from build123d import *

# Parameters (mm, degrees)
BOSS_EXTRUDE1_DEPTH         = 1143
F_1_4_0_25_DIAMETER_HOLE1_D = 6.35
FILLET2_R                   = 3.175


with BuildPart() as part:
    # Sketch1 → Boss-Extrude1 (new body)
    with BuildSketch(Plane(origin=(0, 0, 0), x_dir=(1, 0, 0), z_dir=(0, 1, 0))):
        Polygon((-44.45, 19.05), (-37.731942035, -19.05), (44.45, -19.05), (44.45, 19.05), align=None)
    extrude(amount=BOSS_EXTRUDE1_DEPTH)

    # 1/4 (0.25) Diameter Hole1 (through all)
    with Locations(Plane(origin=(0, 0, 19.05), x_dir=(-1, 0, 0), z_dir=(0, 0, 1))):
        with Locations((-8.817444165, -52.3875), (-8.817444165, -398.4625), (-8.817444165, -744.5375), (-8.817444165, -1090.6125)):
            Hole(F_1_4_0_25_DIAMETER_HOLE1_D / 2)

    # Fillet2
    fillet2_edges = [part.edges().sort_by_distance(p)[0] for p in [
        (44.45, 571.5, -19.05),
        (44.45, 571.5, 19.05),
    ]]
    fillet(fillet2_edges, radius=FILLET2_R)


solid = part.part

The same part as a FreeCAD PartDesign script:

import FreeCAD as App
import Part
import Sketcher
Q = App.Units.Quantity


def edges_at(feature, points):
    """Names of the edges that pass closest to the given points."""
    edges = feature.Shape.Edges
    near = lambda p: min(range(len(edges)), key=lambda i: edges[i].distToShape(Part.Vertex(*p))[0])
    return sorted({f"Edge{near(p) + 1}" for p in points})

doc = App.newDocument("Part")
body = doc.addObject("PartDesign::Body", "Body")

sketch1 = body.newObject("Sketcher::SketchObject", "Sketch")
sketch1.AttachmentSupport = (doc.getObject("XZ_Plane"), [""])
sketch1.MapMode = "FlatFace"
sketch1.addGeometry([
    Part.LineSegment(App.Vector(-44, -19, 0), App.Vector(-38, 19, 0)),
    Part.LineSegment(App.Vector(-38, 19, 0), App.Vector(44, 19, 0)),
    Part.LineSegment(App.Vector(44, 19, 0), App.Vector(44, -19, 0)),
    Part.LineSegment(App.Vector(44, -19, 0), App.Vector(-44, -19, 0)),
], False)
sketch1.addConstraint([
    Sketcher.Constraint("Coincident", 0, 2, 1, 1),
    Sketcher.Constraint("Coincident", 1, 2, 2, 1),
    Sketcher.Constraint("Coincident", 2, 2, 3, 1),
    Sketcher.Constraint("Coincident", 3, 2, 0, 1),
    Sketcher.Constraint("Horizontal", 1),
    Sketcher.Constraint("Vertical", 2),
    Sketcher.Constraint("Horizontal", 3),
    Sketcher.Constraint("Symmetric", 1, 2, 3, 2, -1, 1),
    Sketcher.Constraint("DistanceX", 3, 2, 3, 1, Q("3.5 in")),
    Sketcher.Constraint("DistanceY", 2, 2, 2, 1, Q("1.5 in")),
    Sketcher.Constraint("Angle", 0, Q("80 deg")),
])
pad1 = body.newObject("PartDesign::Pad", "Pad")
pad1.Profile = sketch1
pad1.Length = Q("45 in")
pad1.Reversed = True

sketch2 = body.newObject("Sketcher::SketchObject", "Sketch001")
sketch2.AttachmentSupport = (doc.getObject("XY_Plane"), [""])
sketch2.MapMode = "FlatFace"
sketch2.AttachmentOffset = App.Placement(App.Vector(0, 0, 0.75 * 25.4), App.Rotation())
sketch2.addGeometry([
    Part.Circle(App.Vector(8.8, 52.4, 0), App.Vector(0, 0, 1), 3.2),
    Part.Circle(App.Vector(8.8, 398.5, 0), App.Vector(0, 0, 1), 3.2),
    Part.Circle(App.Vector(8.8, 744.5, 0), App.Vector(0, 0, 1), 3.2),
    Part.Circle(App.Vector(8.8, 1090.6, 0), App.Vector(0, 0, 1), 3.2),
], False)
sketch2.addConstraint([
    Sketcher.Constraint("Equal", 0, 1),
    Sketcher.Constraint("Equal", 1, 2),
    Sketcher.Constraint("Equal", 2, 3),
    Sketcher.Constraint("Vertical", 0, 3, 1, 3),
    Sketcher.Constraint("Vertical", 1, 3, 2, 3),
    Sketcher.Constraint("Vertical", 2, 3, 3, 3),
    Sketcher.Constraint("Diameter", 0, Q("0.25 in")),
    Sketcher.Constraint("DistanceY", 0, 3, 2, 3, Q("27.25 in")),
    Sketcher.Constraint("DistanceY", 1, 3, 3, 3, Q("27.25 in")),
    Sketcher.Constraint("DistanceY", -1, 1, 0, 3, Q("2.0625 in")),
    Sketcher.Constraint("DistanceY", -1, 1, 1, 3, Q("15.6875 in")),
    Sketcher.Constraint("DistanceX", -1, 1, 0, 3, 8.817444),
])
doc.recompute()
hole = body.newObject("PartDesign::Hole", "Hole")
hole.Profile = sketch2
hole.ThreadType = "None"
hole.Diameter = Q("0.25 in")
hole.DepthType = "ThroughAll"
doc.recompute()

fillet = body.newObject("PartDesign::Fillet", "Fillet")
fillet.Base = (hole, edges_at(hole, [(44.45, 571.5, -19.05), (44.45, 571.5, 19.05)]))
fillet.Radius = Q("0.125 in")

doc.recompute()
